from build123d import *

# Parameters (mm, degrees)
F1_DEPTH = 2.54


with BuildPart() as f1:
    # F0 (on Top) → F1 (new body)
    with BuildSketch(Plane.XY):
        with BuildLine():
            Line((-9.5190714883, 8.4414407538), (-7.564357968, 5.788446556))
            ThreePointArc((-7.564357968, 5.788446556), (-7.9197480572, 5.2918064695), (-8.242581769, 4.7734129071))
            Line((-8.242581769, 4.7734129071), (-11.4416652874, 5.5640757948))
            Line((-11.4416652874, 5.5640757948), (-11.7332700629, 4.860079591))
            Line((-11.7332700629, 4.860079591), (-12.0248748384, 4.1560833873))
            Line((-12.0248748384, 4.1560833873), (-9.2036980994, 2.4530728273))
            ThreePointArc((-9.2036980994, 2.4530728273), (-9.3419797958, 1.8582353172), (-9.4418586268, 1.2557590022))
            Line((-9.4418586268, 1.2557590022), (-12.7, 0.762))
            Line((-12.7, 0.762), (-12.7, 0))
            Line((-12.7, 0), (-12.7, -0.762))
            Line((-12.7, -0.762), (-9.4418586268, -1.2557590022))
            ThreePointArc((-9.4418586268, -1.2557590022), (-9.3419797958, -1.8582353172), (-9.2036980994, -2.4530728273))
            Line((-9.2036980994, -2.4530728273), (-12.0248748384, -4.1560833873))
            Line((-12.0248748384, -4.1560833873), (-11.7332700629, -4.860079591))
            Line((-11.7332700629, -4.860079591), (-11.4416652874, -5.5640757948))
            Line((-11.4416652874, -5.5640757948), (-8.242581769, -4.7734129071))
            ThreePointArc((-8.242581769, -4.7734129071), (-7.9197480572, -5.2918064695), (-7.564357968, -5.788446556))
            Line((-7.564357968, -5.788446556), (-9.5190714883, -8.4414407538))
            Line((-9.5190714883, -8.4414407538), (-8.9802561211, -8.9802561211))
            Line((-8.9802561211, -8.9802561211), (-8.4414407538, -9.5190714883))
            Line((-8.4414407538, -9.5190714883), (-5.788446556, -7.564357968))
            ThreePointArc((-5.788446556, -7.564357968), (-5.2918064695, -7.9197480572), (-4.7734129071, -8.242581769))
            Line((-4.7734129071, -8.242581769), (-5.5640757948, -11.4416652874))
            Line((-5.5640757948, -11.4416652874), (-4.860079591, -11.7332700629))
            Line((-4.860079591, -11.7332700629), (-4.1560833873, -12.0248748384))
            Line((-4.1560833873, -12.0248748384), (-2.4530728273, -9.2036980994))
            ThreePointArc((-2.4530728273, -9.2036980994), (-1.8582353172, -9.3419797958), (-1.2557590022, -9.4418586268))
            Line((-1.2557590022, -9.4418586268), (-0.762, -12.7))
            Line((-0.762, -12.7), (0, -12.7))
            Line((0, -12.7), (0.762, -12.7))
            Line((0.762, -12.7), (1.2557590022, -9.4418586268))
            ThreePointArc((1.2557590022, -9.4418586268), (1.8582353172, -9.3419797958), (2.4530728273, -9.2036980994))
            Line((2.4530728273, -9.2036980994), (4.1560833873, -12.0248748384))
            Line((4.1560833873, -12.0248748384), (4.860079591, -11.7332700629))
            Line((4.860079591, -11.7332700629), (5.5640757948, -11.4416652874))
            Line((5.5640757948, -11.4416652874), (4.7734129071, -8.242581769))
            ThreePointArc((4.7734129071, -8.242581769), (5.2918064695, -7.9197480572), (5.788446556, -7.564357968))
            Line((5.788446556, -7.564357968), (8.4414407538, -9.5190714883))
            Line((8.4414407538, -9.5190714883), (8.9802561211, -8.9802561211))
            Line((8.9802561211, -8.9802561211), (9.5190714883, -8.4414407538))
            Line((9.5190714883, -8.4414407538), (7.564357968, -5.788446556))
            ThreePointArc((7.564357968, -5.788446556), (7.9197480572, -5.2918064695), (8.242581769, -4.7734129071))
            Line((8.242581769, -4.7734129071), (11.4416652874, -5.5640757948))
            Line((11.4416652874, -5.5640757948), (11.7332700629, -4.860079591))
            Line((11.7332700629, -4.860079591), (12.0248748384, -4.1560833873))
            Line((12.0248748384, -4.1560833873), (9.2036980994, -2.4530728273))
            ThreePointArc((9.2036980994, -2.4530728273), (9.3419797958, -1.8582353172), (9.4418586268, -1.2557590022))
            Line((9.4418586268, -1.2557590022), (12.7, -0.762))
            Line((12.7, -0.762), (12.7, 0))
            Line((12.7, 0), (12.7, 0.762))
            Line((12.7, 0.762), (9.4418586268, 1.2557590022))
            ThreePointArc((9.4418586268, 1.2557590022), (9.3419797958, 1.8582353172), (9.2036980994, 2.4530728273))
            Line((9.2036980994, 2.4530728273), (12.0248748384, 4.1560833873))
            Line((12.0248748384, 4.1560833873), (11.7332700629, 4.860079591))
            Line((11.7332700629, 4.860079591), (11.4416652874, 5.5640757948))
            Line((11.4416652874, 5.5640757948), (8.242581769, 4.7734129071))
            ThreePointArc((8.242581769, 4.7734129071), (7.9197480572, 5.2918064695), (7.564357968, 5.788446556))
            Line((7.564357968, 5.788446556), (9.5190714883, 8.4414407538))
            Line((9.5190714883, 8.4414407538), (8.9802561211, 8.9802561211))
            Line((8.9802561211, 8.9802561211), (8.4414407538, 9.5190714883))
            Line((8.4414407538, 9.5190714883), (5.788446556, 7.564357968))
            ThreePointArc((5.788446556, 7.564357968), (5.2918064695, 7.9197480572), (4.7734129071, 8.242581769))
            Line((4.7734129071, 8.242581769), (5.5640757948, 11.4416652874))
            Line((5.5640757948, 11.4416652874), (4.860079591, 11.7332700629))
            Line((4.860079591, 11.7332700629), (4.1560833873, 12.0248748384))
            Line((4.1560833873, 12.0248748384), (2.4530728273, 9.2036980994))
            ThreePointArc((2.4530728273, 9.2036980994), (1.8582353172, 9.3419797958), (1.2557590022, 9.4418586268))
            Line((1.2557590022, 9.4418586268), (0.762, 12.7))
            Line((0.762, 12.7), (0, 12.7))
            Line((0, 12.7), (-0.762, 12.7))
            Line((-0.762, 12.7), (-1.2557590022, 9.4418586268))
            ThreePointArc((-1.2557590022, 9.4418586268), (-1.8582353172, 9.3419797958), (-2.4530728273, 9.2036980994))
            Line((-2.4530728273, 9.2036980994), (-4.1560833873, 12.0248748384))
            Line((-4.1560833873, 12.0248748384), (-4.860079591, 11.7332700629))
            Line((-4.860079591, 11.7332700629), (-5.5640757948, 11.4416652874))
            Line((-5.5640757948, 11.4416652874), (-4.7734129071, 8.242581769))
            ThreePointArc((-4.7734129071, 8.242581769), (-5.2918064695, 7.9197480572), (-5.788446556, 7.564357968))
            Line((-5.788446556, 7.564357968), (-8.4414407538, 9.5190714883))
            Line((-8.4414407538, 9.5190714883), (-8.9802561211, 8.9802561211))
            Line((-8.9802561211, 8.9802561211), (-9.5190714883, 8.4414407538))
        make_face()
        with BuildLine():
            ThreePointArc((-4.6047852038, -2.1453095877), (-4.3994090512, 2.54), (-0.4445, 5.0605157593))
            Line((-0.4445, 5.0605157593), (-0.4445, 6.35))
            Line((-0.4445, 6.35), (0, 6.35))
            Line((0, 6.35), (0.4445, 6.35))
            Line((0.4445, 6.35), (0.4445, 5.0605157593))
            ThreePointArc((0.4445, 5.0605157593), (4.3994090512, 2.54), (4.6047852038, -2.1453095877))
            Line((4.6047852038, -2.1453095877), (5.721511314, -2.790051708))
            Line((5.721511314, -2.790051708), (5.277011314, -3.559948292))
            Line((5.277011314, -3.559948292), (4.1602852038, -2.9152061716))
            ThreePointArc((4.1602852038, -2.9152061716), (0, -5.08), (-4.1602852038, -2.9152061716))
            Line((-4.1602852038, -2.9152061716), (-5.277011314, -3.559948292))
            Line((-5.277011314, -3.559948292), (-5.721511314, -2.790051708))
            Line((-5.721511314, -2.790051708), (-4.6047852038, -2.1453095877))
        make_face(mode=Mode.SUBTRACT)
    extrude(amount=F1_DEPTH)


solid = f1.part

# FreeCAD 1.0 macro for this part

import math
import FreeCAD as App
import Part
import Sketcher
from FreeCAD import Vector
Q = App.Units.Quantity

doc = App.newDocument("Part")
body = doc.addObject("PartDesign::Body", "Body")

sketch1 = body.newObject("Sketcher::SketchObject", "Sketch")
sketch1.AttachmentSupport = (doc.getObject("XY_Plane"), [""])
sketch1.MapMode = "FlatFace"
sketch1.addGeometry(Part.LineSegment(Vector(-9.5, 8.4, 0), Vector(-7.6, 5.8, 0)), False)
sketch1.addGeometry(Part.ArcOfCircle(Part.Circle(Vector(0, 0, 0), Vector(0, 0, 1), 9.5), math.radians(142.58), math.radians(149.92)), False)
sketch1.addGeometry(Part.LineSegment(Vector(-8.2, 4.8, 0), Vector(-11.4, 5.6, 0)), False)
sketch1.addGeometry(Part.LineSegment(Vector(-11.4, 5.6, 0), Vector(-11.7, 4.9, 0)), False)
sketch1.addGeometry(Part.LineSegment(Vector(-11.7, 4.9, 0), Vector(-12, 4.2, 0)), False)
sketch1.addGeometry(Part.LineSegment(Vector(-12, 4.2, 0), Vector(-9.2, 2.5, 0)), False)
sketch1.addGeometry(Part.ArcOfCircle(Part.Circle(Vector(0, 0, 0), Vector(0, 0, 1), 9.5), math.radians(165.08), math.radians(172.42)), False)
sketch1.addGeometry(Part.LineSegment(Vector(-9.4, 1.3, 0), Vector(-12.7, 0.8, 0)), False)
sketch1.addGeometry(Part.LineSegment(Vector(-12.7, 0.8, 0), Vector(-12.7, -0.8, 0)), False)
sketch1.addGeometry(Part.LineSegment(Vector(-12.7, -0.8, 0), Vector(-9.4, -1.3, 0)), False)
sketch1.addGeometry(Part.ArcOfCircle(Part.Circle(Vector(0, 0, 0), Vector(0, 0, 1), 9.5), math.radians(-172.42), math.radians(-165.08)), False)
sketch1.addGeometry(Part.LineSegment(Vector(-9.2, -2.5, 0), Vector(-12, -4.2, 0)), False)
sketch1.addGeometry(Part.LineSegment(Vector(-12, -4.2, 0), Vector(-11.7, -4.9, 0)), False)
sketch1.addGeometry(Part.LineSegment(Vector(-11.7, -4.9, 0), Vector(-11.4, -5.6, 0)), False)
sketch1.addGeometry(Part.LineSegment(Vector(-11.4, -5.6, 0), Vector(-8.2, -4.8, 0)), False)
sketch1.addGeometry(Part.ArcOfCircle(Part.Circle(Vector(0, 0, 0), Vector(0, 0, 1), 9.5), math.radians(-149.92), math.radians(-142.58)), False)
sketch1.addGeometry(Part.LineSegment(Vector(-7.6, -5.8, 0), Vector(-9.5, -8.4, 0)), False)
sketch1.addGeometry(Part.LineSegment(Vector(-9.5, -8.4, 0), Vector(-9, -9, 0)), False)
sketch1.addGeometry(Part.LineSegment(Vector(-9, -9, 0), Vector(-8.4, -9.5, 0)), False)
sketch1.addGeometry(Part.LineSegment(Vector(-8.4, -9.5, 0), Vector(-5.8, -7.6, 0)), False)
sketch1.addGeometry(Part.ArcOfCircle(Part.Circle(Vector(0, 0, 0), Vector(0, 0, 1), 9.5), math.radians(-127.42), math.radians(-120.08)), False)
sketch1.addGeometry(Part.LineSegment(Vector(-4.8, -8.2, 0), Vector(-5.6, -11.4, 0)), False)
sketch1.addGeometry(Part.LineSegment(Vector(-5.6, -11.4, 0), Vector(-4.9, -11.7, 0)), False)
sketch1.addGeometry(Part.LineSegment(Vector(-4.9, -11.7, 0), Vector(-4.2, -12, 0)), False)
sketch1.addGeometry(Part.LineSegment(Vector(-4.2, -12, 0), Vector(-2.5, -9.2, 0)), False)
sketch1.addGeometry(Part.ArcOfCircle(Part.Circle(Vector(0, 0, 0), Vector(0, 0, 1), 9.5), math.radians(-104.92), math.radians(-97.58)), False)
sketch1.addGeometry(Part.LineSegment(Vector(-1.3, -9.4, 0), Vector(-0.8, -12.7, 0)), False)
sketch1.addGeometry(Part.LineSegment(Vector(-0.8, -12.7, 0), Vector(0.8, -12.7, 0)), False)
sketch1.addGeometry(Part.LineSegment(Vector(0.8, -12.7, 0), Vector(1.3, -9.4, 0)), False)
sketch1.addGeometry(Part.ArcOfCircle(Part.Circle(Vector(0, 0, 0), Vector(0, 0, 1), 9.5), math.radians(-82.42), math.radians(-75.08)), False)
sketch1.addGeometry(Part.LineSegment(Vector(2.5, -9.2, 0), Vector(4.2, -12, 0)), False)
sketch1.addGeometry(Part.LineSegment(Vector(4.2, -12, 0), Vector(4.9, -11.7, 0)), False)
sketch1.addGeometry(Part.LineSegment(Vector(4.9, -11.7, 0), Vector(5.6, -11.4, 0)), False)
sketch1.addGeometry(Part.LineSegment(Vector(5.6, -11.4, 0), Vector(4.8, -8.2, 0)), False)
sketch1.addGeometry(Part.ArcOfCircle(Part.Circle(Vector(0, 0, 0), Vector(0, 0, 1), 9.5), math.radians(-59.92), math.radians(-52.58)), False)
sketch1.addGeometry(Part.LineSegment(Vector(5.8, -7.6, 0), Vector(8.4, -9.5, 0)), False)
sketch1.addGeometry(Part.LineSegment(Vector(8.4, -9.5, 0), Vector(9, -9, 0)), False)
sketch1.addGeometry(Part.LineSegment(Vector(9, -9, 0), Vector(9.5, -8.4, 0)), False)
sketch1.addGeometry(Part.LineSegment(Vector(9.5, -8.4, 0), Vector(7.6, -5.8, 0)), False)
sketch1.addGeometry(Part.ArcOfCircle(Part.Circle(Vector(0, 0, 0), Vector(0, 0, 1), 9.5), math.radians(-37.42), math.radians(-30.08)), False)
sketch1.addGeometry(Part.LineSegment(Vector(8.2, -4.8, 0), Vector(11.4, -5.6, 0)), False)
sketch1.addGeometry(Part.LineSegment(Vector(11.4, -5.6, 0), Vector(11.7, -4.9, 0)), False)
sketch1.addGeometry(Part.LineSegment(Vector(11.7, -4.9, 0), Vector(12, -4.2, 0)), False)
sketch1.addGeometry(Part.LineSegment(Vector(12, -4.2, 0), Vector(9.2, -2.5, 0)), False)
sketch1.addGeometry(Part.ArcOfCircle(Part.Circle(Vector(0, 0, 0), Vector(0, 0, 1), 9.5), math.radians(-14.92), math.radians(-7.58)), False)
sketch1.addGeometry(Part.LineSegment(Vector(9.4, -1.3, 0), Vector(12.7, -0.8, 0)), False)
sketch1.addGeometry(Part.LineSegment(Vector(12.7, -0.8, 0), Vector(12.7, 0.8, 0)), False)
sketch1.addGeometry(Part.LineSegment(Vector(12.7, 0.8, 0), Vector(9.4, 1.3, 0)), False)
sketch1.addGeometry(Part.ArcOfCircle(Part.Circle(Vector(0, 0, 0), Vector(0, 0, 1), 9.5), math.radians(7.58), math.radians(14.92)), False)
sketch1.addGeometry(Part.LineSegment(Vector(9.2, 2.5, 0), Vector(12, 4.2, 0)), False)
sketch1.addGeometry(Part.LineSegment(Vector(12, 4.2, 0), Vector(11.7, 4.9, 0)), False)
sketch1.addGeometry(Part.LineSegment(Vector(11.7, 4.9, 0), Vector(11.4, 5.6, 0)), False)
sketch1.addGeometry(Part.LineSegment(Vector(11.4, 5.6, 0), Vector(8.2, 4.8, 0)), False)
sketch1.addGeometry(Part.ArcOfCircle(Part.Circle(Vector(0, 0, 0), Vector(0, 0, 1), 9.5), math.radians(30.08), math.radians(37.42)), False)
sketch1.addGeometry(Part.LineSegment(Vector(7.6, 5.8, 0), Vector(9.5, 8.4, 0)), False)
sketch1.addGeometry(Part.LineSegment(Vector(9.5, 8.4, 0), Vector(9, 9, 0)), False)
sketch1.addGeometry(Part.LineSegment(Vector(9, 9, 0), Vector(8.4, 9.5, 0)), False)
sketch1.addGeometry(Part.LineSegment(Vector(8.4, 9.5, 0), Vector(5.8, 7.6, 0)), False)
sketch1.addGeometry(Part.ArcOfCircle(Part.Circle(Vector(0, 0, 0), Vector(0, 0, 1), 9.5), math.radians(52.58), math.radians(59.92)), False)
sketch1.addGeometry(Part.LineSegment(Vector(4.8, 8.2, 0), Vector(5.6, 11.4, 0)), False)
sketch1.addGeometry(Part.LineSegment(Vector(5.6, 11.4, 0), Vector(4.9, 11.7, 0)), False)
sketch1.addGeometry(Part.LineSegment(Vector(4.9, 11.7, 0), Vector(4.2, 12, 0)), False)
sketch1.addGeometry(Part.LineSegment(Vector(4.2, 12, 0), Vector(2.5, 9.2, 0)), False)
sketch1.addGeometry(Part.ArcOfCircle(Part.Circle(Vector(0, 0, 0), Vector(0, 0, 1), 9.5), math.radians(75.08), math.radians(82.42)), False)
sketch1.addGeometry(Part.LineSegment(Vector(1.3, 9.4, 0), Vector(0.8, 12.7, 0)), False)
sketch1.addGeometry(Part.LineSegment(Vector(0.8, 12.7, 0), Vector(-0.8, 12.7, 0)), False)
sketch1.addGeometry(Part.LineSegment(Vector(-0.8, 12.7, 0), Vector(-1.3, 9.4, 0)), False)
sketch1.addGeometry(Part.ArcOfCircle(Part.Circle(Vector(0, 0, 0), Vector(0, 0, 1), 9.5), math.radians(97.58), math.radians(104.92)), False)
sketch1.addGeometry(Part.LineSegment(Vector(-2.5, 9.2, 0), Vector(-4.2, 12, 0)), False)
sketch1.addGeometry(Part.LineSegment(Vector(-4.2, 12, 0), Vector(-4.9, 11.7, 0)), False)
sketch1.addGeometry(Part.LineSegment(Vector(-4.9, 11.7, 0), Vector(-5.6, 11.4, 0)), False)
sketch1.addGeometry(Part.LineSegment(Vector(-5.6, 11.4, 0), Vector(-4.8, 8.2, 0)), False)
sketch1.addGeometry(Part.ArcOfCircle(Part.Circle(Vector(0, 0, 0), Vector(0, 0, 1), 9.5), math.radians(120.08), math.radians(127.42)), False)
sketch1.addGeometry(Part.LineSegment(Vector(-5.8, 7.6, 0), Vector(-8.4, 9.5, 0)), False)
sketch1.addGeometry(Part.LineSegment(Vector(-8.4, 9.5, 0), Vector(-9, 9, 0)), False)
sketch1.addGeometry(Part.LineSegment(Vector(-9, 9, 0), Vector(-9.5, 8.4, 0)), False)
sketch1.addGeometry(Part.LineSegment(Vector(-5.7, -2.8, 0), Vector(-4.6, -2.1, 0)), False)
sketch1.addGeometry(Part.ArcOfCircle(Part.Circle(Vector(0, 0, 0), Vector(0, 0, 1), 5.1), math.radians(95), math.radians(205)), False)
sketch1.addGeometry(Part.LineSegment(Vector(-0.4, 5.1, 0), Vector(-0.4, 6.3, 0)), False)
sketch1.addGeometry(Part.LineSegment(Vector(-0.4, 6.3, 0), Vector(0.4, 6.3, 0)), False)
sketch1.addGeometry(Part.LineSegment(Vector(0.4, 6.3, 0), Vector(0.4, 5.1, 0)), False)
sketch1.addGeometry(Part.ArcOfCircle(Part.Circle(Vector(0, 0, 0), Vector(0, 0, 1), 5.1), math.radians(-25), math.radians(85)), False)
sketch1.addGeometry(Part.LineSegment(Vector(4.6, -2.1, 0), Vector(5.7, -2.8, 0)), False)
sketch1.addGeometry(Part.LineSegment(Vector(5.7, -2.8, 0), Vector(5.3, -3.6, 0)), False)
sketch1.addGeometry(Part.LineSegment(Vector(5.3, -3.6, 0), Vector(4.2, -2.9, 0)), False)
sketch1.addGeometry(Part.ArcOfCircle(Part.Circle(Vector(0, 0, 0), Vector(0, 0, 1), 5.1), math.radians(-145), math.radians(-35)), False)
sketch1.addGeometry(Part.LineSegment(Vector(-4.2, -2.9, 0), Vector(-5.3, -3.6, 0)), False)
sketch1.addGeometry(Part.LineSegment(Vector(-5.3, -3.6, 0), Vector(-5.7, -2.8, 0)), False)
sketch1.addConstraint(Sketcher.Constraint("Coincident", 0, 2, 1, 1))
sketch1.addConstraint(Sketcher.Constraint("Coincident", 1, 2, 2, 1))
sketch1.addConstraint(Sketcher.Constraint("Coincident", 2, 2, 3, 1))
sketch1.addConstraint(Sketcher.Constraint("Coincident", 3, 2, 4, 1))
sketch1.addConstraint(Sketcher.Constraint("Coincident", 4, 2, 5, 1))
sketch1.addConstraint(Sketcher.Constraint("Coincident", 5, 2, 6, 1))
sketch1.addConstraint(Sketcher.Constraint("Coincident", 6, 2, 7, 1))
sketch1.addConstraint(Sketcher.Constraint("Coincident", 7, 2, 8, 1))
sketch1.addConstraint(Sketcher.Constraint("Coincident", 8, 2, 9, 1))
sketch1.addConstraint(Sketcher.Constraint("Coincident", 9, 2, 10, 1))
sketch1.addConstraint(Sketcher.Constraint("Coincident", 10, 2, 11, 1))
sketch1.addConstraint(Sketcher.Constraint("Coincident", 11, 2, 12, 1))
sketch1.addConstraint(Sketcher.Constraint("Coincident", 12, 2, 13, 1))
sketch1.addConstraint(Sketcher.Constraint("Coincident", 13, 2, 14, 1))
sketch1.addConstraint(Sketcher.Constraint("Coincident", 14, 2, 15, 1))
sketch1.addConstraint(Sketcher.Constraint("Coincident", 15, 2, 16, 1))
sketch1.addConstraint(Sketcher.Constraint("Coincident", 16, 2, 17, 1))
sketch1.addConstraint(Sketcher.Constraint("Coincident", 17, 2, 18, 1))
sketch1.addConstraint(Sketcher.Constraint("Coincident", 18, 2, 19, 1))
sketch1.addConstraint(Sketcher.Constraint("Coincident", 19, 2, 20, 1))
sketch1.addConstraint(Sketcher.Constraint("Coincident", 20, 2, 21, 1))
sketch1.addConstraint(Sketcher.Constraint("Coincident", 21, 2, 22, 1))
sketch1.addConstraint(Sketcher.Constraint("Coincident", 22, 2, 23, 1))
sketch1.addConstraint(Sketcher.Constraint("Coincident", 23, 2, 24, 1))
sketch1.addConstraint(Sketcher.Constraint("Coincident", 24, 2, 25, 1))
sketch1.addConstraint(Sketcher.Constraint("Coincident", 25, 2, 26, 1))
sketch1.addConstraint(Sketcher.Constraint("Coincident", 26, 2, 27, 1))
sketch1.addConstraint(Sketcher.Constraint("Coincident", 27, 2, 28, 1))
sketch1.addConstraint(Sketcher.Constraint("Coincident", 28, 2, 29, 1))
sketch1.addConstraint(Sketcher.Constraint("Coincident", 29, 2, 30, 1))
sketch1.addConstraint(Sketcher.Constraint("Coincident", 30, 2, 31, 1))
sketch1.addConstraint(Sketcher.Constraint("Coincident", 31, 2, 32, 1))
sketch1.addConstraint(Sketcher.Constraint("Coincident", 32, 2, 33, 1))
sketch1.addConstraint(Sketcher.Constraint("Coincident", 33, 2, 34, 1))
sketch1.addConstraint(Sketcher.Constraint("Coincident", 34, 2, 35, 1))
sketch1.addConstraint(Sketcher.Constraint("Coincident", 35, 2, 36, 1))
sketch1.addConstraint(Sketcher.Constraint("Coincident", 36, 2, 37, 1))
sketch1.addConstraint(Sketcher.Constraint("Coincident", 37, 2, 38, 1))
sketch1.addConstraint(Sketcher.Constraint("Coincident", 38, 2, 39, 1))
sketch1.addConstraint(Sketcher.Constraint("Coincident", 39, 2, 40, 1))
sketch1.addConstraint(Sketcher.Constraint("Coincident", 40, 2, 41, 1))
sketch1.addConstraint(Sketcher.Constraint("Coincident", 41, 2, 42, 1))
sketch1.addConstraint(Sketcher.Constraint("Coincident", 42, 2, 43, 1))
sketch1.addConstraint(Sketcher.Constraint("Coincident", 43, 2, 44, 1))
sketch1.addConstraint(Sketcher.Constraint("Coincident", 44, 2, 45, 1))
sketch1.addConstraint(Sketcher.Constraint("Coincident", 45, 2, 46, 1))
sketch1.addConstraint(Sketcher.Constraint("Coincident", 46, 2, 47, 1))
sketch1.addConstraint(Sketcher.Constraint("Coincident", 47, 2, 48, 1))
sketch1.addConstraint(Sketcher.Constraint("Coincident", 48, 2, 49, 1))
sketch1.addConstraint(Sketcher.Constraint("Coincident", 49, 2, 50, 1))
sketch1.addConstraint(Sketcher.Constraint("Coincident", 50, 2, 51, 1))
sketch1.addConstraint(Sketcher.Constraint("Coincident", 51, 2, 52, 1))
sketch1.addConstraint(Sketcher.Constraint("Coincident", 52, 2, 53, 1))
sketch1.addConstraint(Sketcher.Constraint("Coincident", 53, 2, 54, 1))
sketch1.addConstraint(Sketcher.Constraint("Coincident", 54, 2, 55, 1))
sketch1.addConstraint(Sketcher.Constraint("Coincident", 55, 2, 56, 1))
sketch1.addConstraint(Sketcher.Constraint("Coincident", 56, 2, 57, 1))
sketch1.addConstraint(Sketcher.Constraint("Coincident", 57, 2, 58, 1))
sketch1.addConstraint(Sketcher.Constraint("Coincident", 58, 2, 59, 1))
sketch1.addConstraint(Sketcher.Constraint("Coincident", 59, 2, 60, 1))
sketch1.addConstraint(Sketcher.Constraint("Coincident", 60, 2, 61, 1))
sketch1.addConstraint(Sketcher.Constraint("Coincident", 61, 2, 62, 1))
sketch1.addConstraint(Sketcher.Constraint("Coincident", 62, 2, 63, 1))
sketch1.addConstraint(Sketcher.Constraint("Coincident", 63, 2, 64, 1))
sketch1.addConstraint(Sketcher.Constraint("Coincident", 64, 2, 65, 1))
sketch1.addConstraint(Sketcher.Constraint("Coincident", 65, 2, 66, 1))
sketch1.addConstraint(Sketcher.Constraint("Coincident", 66, 2, 67, 1))
sketch1.addConstraint(Sketcher.Constraint("Coincident", 67, 2, 68, 1))
sketch1.addConstraint(Sketcher.Constraint("Coincident", 68, 2, 69, 1))
sketch1.addConstraint(Sketcher.Constraint("Coincident", 69, 2, 70, 1))
sketch1.addConstraint(Sketcher.Constraint("Coincident", 70, 2, 71, 1))
sketch1.addConstraint(Sketcher.Constraint("Coincident", 71, 2, 72, 1))
sketch1.addConstraint(Sketcher.Constraint("Coincident", 72, 2, 73, 1))
sketch1.addConstraint(Sketcher.Constraint("Coincident", 73, 2, 74, 1))
sketch1.addConstraint(Sketcher.Constraint("Coincident", 74, 2, 75, 1))
sketch1.addConstraint(Sketcher.Constraint("Coincident", 75, 2, 0, 1))
sketch1.addConstraint(Sketcher.Constraint("Coincident", 76, 2, 77, 2))
sketch1.addConstraint(Sketcher.Constraint("Coincident", 77, 1, 78, 1))
sketch1.addConstraint(Sketcher.Constraint("Coincident", 78, 2, 79, 1))
sketch1.addConstraint(Sketcher.Constraint("Coincident", 79, 2, 80, 1))
sketch1.addConstraint(Sketcher.Constraint("Coincident", 80, 2, 81, 2))
sketch1.addConstraint(Sketcher.Constraint("Coincident", 81, 1, 82, 1))
sketch1.addConstraint(Sketcher.Constraint("Coincident", 82, 2, 83, 1))
sketch1.addConstraint(Sketcher.Constraint("Coincident", 83, 2, 84, 1))
sketch1.addConstraint(Sketcher.Constraint("Coincident", 84, 2, 85, 2))
sketch1.addConstraint(Sketcher.Constraint("Coincident", 85, 1, 86, 1))
sketch1.addConstraint(Sketcher.Constraint("Coincident", 86, 2, 87, 1))
sketch1.addConstraint(Sketcher.Constraint("Coincident", 87, 2, 76, 1))
sketch1.addConstraint(Sketcher.Constraint("Vertical", 8))
sketch1.addConstraint(Sketcher.Constraint("Horizontal", 27))
sketch1.addConstraint(Sketcher.Constraint("Vertical", 46))
sketch1.addConstraint(Sketcher.Constraint("Horizontal", 65))
sketch1.addConstraint(Sketcher.Constraint("Vertical", 78))
sketch1.addConstraint(Sketcher.Constraint("Horizontal", 79))
sketch1.addConstraint(Sketcher.Constraint("Vertical", 80))
sketch1.addConstraint(Sketcher.Constraint("Coincident", 1, 3, -1, 1))
sketch1.addConstraint(Sketcher.Constraint("Coincident", 6, 3, -1, 1))
sketch1.addConstraint(Sketcher.Constraint("Coincident", 10, 3, -1, 1))
sketch1.addConstraint(Sketcher.Constraint("Coincident", 15, 3, -1, 1))
sketch1.addConstraint(Sketcher.Constraint("Coincident", 20, 3, -1, 1))
sketch1.addConstraint(Sketcher.Constraint("Coincident", 25, 3, -1, 1))
sketch1.addConstraint(Sketcher.Constraint("Coincident", 29, 3, -1, 1))
sketch1.addConstraint(Sketcher.Constraint("Coincident", 34, 3, -1, 1))
sketch1.addConstraint(Sketcher.Constraint("Coincident", 39, 3, -1, 1))
sketch1.addConstraint(Sketcher.Constraint("Coincident", 44, 3, -1, 1))
sketch1.addConstraint(Sketcher.Constraint("Coincident", 48, 3, -1, 1))
sketch1.addConstraint(Sketcher.Constraint("Coincident", 53, 3, -1, 1))
sketch1.addConstraint(Sketcher.Constraint("Coincident", 58, 3, -1, 1))
sketch1.addConstraint(Sketcher.Constraint("Coincident", 63, 3, -1, 1))
sketch1.addConstraint(Sketcher.Constraint("Coincident", 67, 3, -1, 1))
sketch1.addConstraint(Sketcher.Constraint("Coincident", 72, 3, -1, 1))
sketch1.addConstraint(Sketcher.Constraint("Coincident", 77, 3, -1, 1))
sketch1.addConstraint(Sketcher.Constraint("Coincident", 81, 3, -1, 1))
sketch1.addConstraint(Sketcher.Constraint("Coincident", 85, 3, -1, 1))
sketch1.addConstraint(Sketcher.Constraint("Equal", 1, 6))
sketch1.addConstraint(Sketcher.Constraint("Equal", 6, 10))
sketch1.addConstraint(Sketcher.Constraint("Equal", 10, 15))
sketch1.addConstraint(Sketcher.Constraint("Equal", 15, 20))
sketch1.addConstraint(Sketcher.Constraint("Equal", 20, 25))
sketch1.addConstraint(Sketcher.Constraint("Equal", 25, 29))
sketch1.addConstraint(Sketcher.Constraint("Equal", 29, 34))
sketch1.addConstraint(Sketcher.Constraint("Equal", 34, 39))
sketch1.addConstraint(Sketcher.Constraint("Equal", 39, 44))
sketch1.addConstraint(Sketcher.Constraint("Equal", 44, 48))
sketch1.addConstraint(Sketcher.Constraint("Equal", 48, 53))
sketch1.addConstraint(Sketcher.Constraint("Equal", 53, 58))
sketch1.addConstraint(Sketcher.Constraint("Equal", 58, 63))
sketch1.addConstraint(Sketcher.Constraint("Equal", 63, 67))
sketch1.addConstraint(Sketcher.Constraint("Equal", 67, 72))
sketch1.addConstraint(Sketcher.Constraint("Equal", 77, 81))
sketch1.addConstraint(Sketcher.Constraint("Equal", 81, 85))
sketch1.addConstraint(Sketcher.Constraint("Symmetric", 2, 2, 40, 2, -1, 1))
sketch1.addConstraint(Sketcher.Constraint("Symmetric", 3, 2, 41, 2, -1, 1))
sketch1.addConstraint(Sketcher.Constraint("Symmetric", 4, 2, 42, 2, -1, 1))
sketch1.addConstraint(Sketcher.Constraint("Symmetric", 7, 2, 45, 2, -1, 1))
sketch1.addConstraint(Sketcher.Constraint("Symmetric", 11, 2, 49, 2, -1, 1))
sketch1.addConstraint(Sketcher.Constraint("Symmetric", 12, 2, 50, 2, -1, 1))
sketch1.addConstraint(Sketcher.Constraint("Symmetric", 13, 2, 51, 2, -1, 1))
sketch1.addConstraint(Sketcher.Constraint("Symmetric", 16, 2, 54, 2, -1, 1))
sketch1.addConstraint(Sketcher.Constraint("Symmetric", 17, 2, 55, 2, -1, 1))
sketch1.addConstraint(Sketcher.Constraint("Symmetric", 18, 2, 56, 2, -1, 1))
sketch1.addConstraint(Sketcher.Constraint("Symmetric", 21, 2, 59, 2, -1, 1))
sketch1.addConstraint(Sketcher.Constraint("Symmetric", 22, 2, 60, 2, -1, 1))
sketch1.addConstraint(Sketcher.Constraint("Symmetric", 23, 2, 61, 2, -1, 1))
sketch1.addConstraint(Sketcher.Constraint("Symmetric", 26, 2, 64, 2, -1, 1))
sketch1.addConstraint(Sketcher.Constraint("Symmetric", 30, 2, 68, 2, -1, 1))
sketch1.addConstraint(Sketcher.Constraint("Symmetric", 31, 2, 69, 2, -1, 1))
sketch1.addConstraint(Sketcher.Constraint("Symmetric", 32, 2, 70, 2, -1, 1))
sketch1.addConstraint(Sketcher.Constraint("Symmetric", 35, 2, 73, 2, -1, 1))
sketch1.addConstraint(Sketcher.Constraint("Symmetric", 36, 2, 74, 2, -1, 1))
sketch1.addConstraint(Sketcher.Constraint("Symmetric", 37, 2, 75, 2, -1, 1))
sketch1.addConstraint(Sketcher.Constraint("Symmetric", 23, 2, 30, 2, -2))
sketch1.addConstraint(Sketcher.Constraint("Symmetric", 22, 2, 31, 2, -2))
sketch1.addConstraint(Sketcher.Constraint("Symmetric", 21, 2, 32, 2, -2))
sketch1.addConstraint(Sketcher.Constraint("Symmetric", 18, 2, 35, 2, -2))
sketch1.addConstraint(Sketcher.Constraint("Symmetric", 17, 2, 36, 2, -2))
sketch1.addConstraint(Sketcher.Constraint("Symmetric", 16, 2, 37, 2, -2))
sketch1.addConstraint(Sketcher.Constraint("Symmetric", 13, 2, 40, 2, -2))
sketch1.addConstraint(Sketcher.Constraint("Symmetric", 12, 2, 41, 2, -2))
sketch1.addConstraint(Sketcher.Constraint("Symmetric", 11, 2, 42, 2, -2))
sketch1.addConstraint(Sketcher.Constraint("Symmetric", 83, 2, 86, 2, -2))
sketch1.addConstraint(Sketcher.Constraint("Symmetric", 82, 2, 87, 2, -2))
sketch1.addConstraint(Sketcher.Constraint("Parallel", 3, 4))
sketch1.addConstraint(Sketcher.Constraint("Parallel", 17, 18))
sketch1.addConstraint(Sketcher.Constraint("Perpendicular", 0, 19))
sketch1.addConstraint(Sketcher.Constraint("Perpendicular", 2, 21))
sketch1.addConstraint(Sketcher.Constraint("Perpendicular", 4, 22))
sketch1.addConstraint(Sketcher.Constraint("Parallel", 22, 23))
sketch1.addConstraint(Sketcher.Constraint("Perpendicular", 5, 24))
sketch1.addConstraint(Sketcher.Constraint("Perpendicular", 7, 26))
sketch1.addConstraint(Sketcher.Constraint("Perpendicular", 9, 28))
sketch1.addConstraint(Sketcher.Constraint("Perpendicular", 11, 30))
sketch1.addConstraint(Sketcher.Constraint("Perpendicular", 14, 33))
sketch1.addConstraint(Sketcher.Constraint("Perpendicular", 16, 35))
sketch1.addConstraint(Sketcher.Constraint("Perpendicular", 18, 36))
sketch1.addConstraint(Sketcher.Constraint("Perpendicular", 19, 38))
sketch1.addConstraint(Sketcher.Constraint("Perpendicular", 21, 40))
sketch1.addConstraint(Sketcher.Constraint("Perpendicular", 24, 43))
sketch1.addConstraint(Sketcher.Constraint("Perpendicular", 26, 45))
sketch1.addConstraint(Sketcher.Constraint("Perpendicular", 28, 47))
sketch1.addConstraint(Sketcher.Constraint("Perpendicular", 30, 49))
sketch1.addConstraint(Sketcher.Constraint("Perpendicular", 33, 52))
sketch1.addConstraint(Sketcher.Constraint("Perpendicular", 35, 54))
sketch1.addConstraint(Sketcher.Constraint("Perpendicular", 38, 57))
sketch1.addConstraint(Sketcher.Constraint("Perpendicular", 40, 59))
sketch1.addConstraint(Sketcher.Constraint("Perpendicular", 43, 62))
sketch1.addConstraint(Sketcher.Constraint("Perpendicular", 45, 64))
sketch1.addConstraint(Sketcher.Constraint("Perpendicular", 47, 66))
sketch1.addConstraint(Sketcher.Constraint("Perpendicular", 49, 68))
sketch1.addConstraint(Sketcher.Constraint("Perpendicular", 52, 71))
sketch1.addConstraint(Sketcher.Constraint("Perpendicular", 54, 73))
sketch1.addConstraint(Sketcher.Constraint("Perpendicular", 82, 83))
sketch1.addConstraint(Sketcher.Constraint("Perpendicular", 83, 84))
sketch1.addConstraint(Sketcher.Constraint("Parallel", 76, 86))
sketch1.addConstraint(Sketcher.Constraint("Perpendicular", 86, 87))
sketch1.addConstraint(Sketcher.Constraint("Horizontal", 25, 2, 28, 2))
sketch1.addConstraint(Sketcher.Constraint("Horizontal", 24, 2, 29, 2))
sketch1.addConstraint(Sketcher.Constraint("Horizontal", 20, 2, 33, 2))
sketch1.addConstraint(Sketcher.Constraint("Horizontal", 19, 2, 34, 2))
sketch1.addConstraint(Sketcher.Constraint("Horizontal", 9, 2, 44, 2))
sketch1.addConstraint(Sketcher.Constraint("Horizontal", 8, 2, 45, 2))
sketch1.addConstraint(Sketcher.Constraint("Horizontal", 7, 2, 46, 2))
sketch1.addConstraint(Sketcher.Constraint("Horizontal", 63, 2, 66, 2))
sketch1.addConstraint(Sketcher.Constraint("Horizontal", 77, 1, 80, 2))
sketch1.addConstraint(Sketcher.Constraint("Equal", 65, 8))
sketch1.addConstraint(Sketcher.Constraint("Equal", 0, 2))
sketch1.addConstraint(Sketcher.Constraint("Equal", 3, 4))
sketch1.addConstraint(Sketcher.Constraint("Equal", 2, 5))
sketch1.addConstraint(Sketcher.Constraint("Equal", 5, 7))
sketch1.addConstraint(Sketcher.Constraint("Equal", 13, 17))
sketch1.addConstraint(Sketcher.Constraint("Equal", 17, 18))
sketch1.addConstraint(Sketcher.Constraint("Equal", 16, 19))
sketch1.addConstraint(Sketcher.Constraint("Equal", 19, 21))
sketch1.addConstraint(Sketcher.Constraint("Equal", 18, 22))
sketch1.addConstraint(Sketcher.Constraint("Equal", 22, 23))
sketch1.addConstraint(Sketcher.Constraint("Equal", 21, 24))
sketch1.addConstraint(Sketcher.Constraint("Equal", 24, 26))
sketch1.addConstraint(Sketcher.Constraint("Equal", 82, 84))
sketch1.addConstraint(Sketcher.Constraint("Radius", 77, Q("0.2 in")))
sketch1.addConstraint(Sketcher.Constraint("Angle", 76, Q("30 deg")))
sketch1.addConstraint(Sketcher.Constraint("Radius", 1, Q("0.375 in")))
sketch1.addConstraint(Sketcher.Constraint("DistanceX", 27, 1, 27, 2, Q("0.06 in")))
sketch1.addConstraint(Sketcher.Constraint("DistanceX", 7, 2, -1, 1, Q("0.5 in")))
sketch1.addConstraint(Sketcher.Constraint("Angle", 3, Q("-112.5 deg")))
sketch1.addConstraint(Sketcher.Constraint("Distance", 3, Q("0.03 in")))
sketch1.addConstraint(Sketcher.Constraint("DistanceX", 79, 1, 79, 2, Q("0.035 in")))
sketch1.addConstraint(Sketcher.Constraint("DistanceY", -1, 1, 78, 2, Q("0.25 in")))
sketch1.addConstraint(Sketcher.Constraint("Distance", 83, Q("0.035 in")))
sketch1.addConstraint(Sketcher.Constraint("DistanceX", 5, 2, -1, 1, Q("9.203698 mm")))
sketch1.addConstraint(Sketcher.Constraint("DistanceX", 1, 2, -1, 1, Q("8.242582 mm")))
sketch1.addConstraint(Sketcher.Constraint("DistanceX", 3, 2, -1, 1, Q("11.73327 mm")))
sketch1.addConstraint(Sketcher.Constraint("DistanceX", 16, 2, -1, 1, Q("9.519071 mm")))
sketch1.addConstraint(Sketcher.Constraint("DistanceX", -1, 1, 82, 2, Q("5.721511 mm")))
pad1 = body.newObject("PartDesign::Pad", "Pad")
pad1.Profile = sketch1
pad1.Length = Q("0.1 in")

doc.recompute()
